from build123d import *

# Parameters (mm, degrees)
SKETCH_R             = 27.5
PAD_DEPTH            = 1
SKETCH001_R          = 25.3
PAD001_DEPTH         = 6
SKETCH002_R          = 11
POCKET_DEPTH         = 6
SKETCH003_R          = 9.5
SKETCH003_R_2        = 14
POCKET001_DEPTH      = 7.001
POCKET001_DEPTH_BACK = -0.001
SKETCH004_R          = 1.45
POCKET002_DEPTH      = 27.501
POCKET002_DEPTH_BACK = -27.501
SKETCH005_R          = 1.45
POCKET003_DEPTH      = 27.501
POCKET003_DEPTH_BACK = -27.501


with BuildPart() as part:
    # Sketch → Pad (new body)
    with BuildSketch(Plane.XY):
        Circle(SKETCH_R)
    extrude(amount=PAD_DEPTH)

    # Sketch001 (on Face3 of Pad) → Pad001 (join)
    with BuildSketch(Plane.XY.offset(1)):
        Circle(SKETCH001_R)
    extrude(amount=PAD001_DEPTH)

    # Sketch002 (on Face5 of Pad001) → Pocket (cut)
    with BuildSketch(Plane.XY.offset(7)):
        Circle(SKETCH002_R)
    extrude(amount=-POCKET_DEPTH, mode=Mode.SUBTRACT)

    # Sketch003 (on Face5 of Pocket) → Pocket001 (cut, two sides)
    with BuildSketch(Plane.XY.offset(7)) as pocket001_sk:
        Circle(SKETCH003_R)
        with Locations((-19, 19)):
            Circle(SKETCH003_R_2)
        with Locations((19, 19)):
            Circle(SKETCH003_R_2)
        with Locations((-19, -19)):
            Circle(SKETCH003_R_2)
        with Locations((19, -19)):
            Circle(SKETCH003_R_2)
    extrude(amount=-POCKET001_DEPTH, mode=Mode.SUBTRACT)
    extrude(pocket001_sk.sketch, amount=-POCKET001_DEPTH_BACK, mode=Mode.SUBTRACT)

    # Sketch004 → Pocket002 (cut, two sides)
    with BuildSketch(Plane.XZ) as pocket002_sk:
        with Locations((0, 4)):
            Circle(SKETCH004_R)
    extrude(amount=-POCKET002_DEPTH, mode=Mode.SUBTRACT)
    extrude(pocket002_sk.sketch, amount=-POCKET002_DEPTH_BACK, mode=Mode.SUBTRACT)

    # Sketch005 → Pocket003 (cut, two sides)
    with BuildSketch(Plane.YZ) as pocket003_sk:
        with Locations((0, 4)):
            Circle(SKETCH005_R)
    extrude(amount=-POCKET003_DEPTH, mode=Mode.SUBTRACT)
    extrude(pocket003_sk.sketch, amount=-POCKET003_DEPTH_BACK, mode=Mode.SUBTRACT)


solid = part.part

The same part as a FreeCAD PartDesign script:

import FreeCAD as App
import Part
import Sketcher

doc = App.newDocument("Part")
params = doc.addObject("Spreadsheet::Sheet", "Params")
for row, (alias, value) in enumerate([
    ("sketch1_diameter", "55 mm"),
    ("pad1_length", "1 mm"),
    ("sketch2_diameter", "50.6 mm"),
    ("pad2_length", "6 mm"),
    ("sketch3_diameter", "22 mm"),
    ("pocket1_length", "6 mm"),
    ("sketch4_diameter", "19 mm"),
    ("sketch4_diameter2", "28 mm"),
    ("sketch5_diameter", "2.9 mm"),
    ("sketch6_diameter", "2.9 mm"),
], start=1):
    params.set(f"A{row}", alias)
    params.set(f"B{row}", "=" + value)
    params.setAlias(f"B{row}", alias)

body = doc.addObject("PartDesign::Body", "Body")

sketch1 = body.newObject("Sketcher::SketchObject", "Sketch")
sketch1.AttachmentSupport = (doc.getObject("XY_Plane"), [""])
sketch1.MapMode = "FlatFace"
sketch1.addGeometry(Part.Circle(App.Vector(0, 0, 0), App.Vector(0, 0, 1), 28), False)
sketch1.addConstraint([
    Sketcher.Constraint("Coincident", 0, 3, -1, 1),
    Sketcher.Constraint("Diameter", 0, 55.0),
])
sketch1.setExpression("Constraints[1]", "Params.sketch1_diameter")
pad1 = body.newObject("PartDesign::Pad", "Pad")
pad1.Profile = sketch1
pad1.setExpression("Length", "Params.pad1_length")

sketch2 = body.newObject("Sketcher::SketchObject", "Sketch001")
sketch2.AttachmentSupport = (doc.getObject("XY_Plane"), [""])
sketch2.MapMode = "FlatFace"
sketch2.AttachmentOffset = App.Placement(App.Vector(0, 0, 1), App.Rotation())
sketch2.addGeometry(Part.Circle(App.Vector(0, 0, 0), App.Vector(0, 0, 1), 25), False)
sketch2.addConstraint([
    Sketcher.Constraint("Coincident", 0, 3, -1, 1),
    Sketcher.Constraint("Diameter", 0, 50.6),
])
sketch2.setExpression("Constraints[1]", "Params.sketch2_diameter")
pad2 = body.newObject("PartDesign::Pad", "Pad001")
pad2.Profile = sketch2
pad2.setExpression("Length", "Params.pad2_length")

sketch3 = body.newObject("Sketcher::SketchObject", "Sketch002")
sketch3.AttachmentSupport = (doc.getObject("XY_Plane"), [""])
sketch3.MapMode = "FlatFace"
sketch3.AttachmentOffset = App.Placement(App.Vector(0, 0, 7), App.Rotation())
sketch3.addGeometry(Part.Circle(App.Vector(0, 0, 0), App.Vector(0, 0, 1), 11), False)
sketch3.addConstraint([
    Sketcher.Constraint("Coincident", 0, 3, -1, 1),
    Sketcher.Constraint("Diameter", 0, 22.0),
])
sketch3.setExpression("Constraints[1]", "Params.sketch3_diameter")
pocket1 = body.newObject("PartDesign::Pocket", "Pocket")
pocket1.Profile = sketch3
pocket1.setExpression("Length", "Params.pocket1_length")

sketch4 = body.newObject("Sketcher::SketchObject", "Sketch003")
sketch4.AttachmentSupport = (doc.getObject("XY_Plane"), [""])
sketch4.MapMode = "FlatFace"
sketch4.AttachmentOffset = App.Placement(App.Vector(0, 0, 7), App.Rotation())
sketch4.addGeometry([
    Part.Circle(App.Vector(0, 0, 0), App.Vector(0, 0, 1), 10),
    Part.Circle(App.Vector(-19, 19, 0), App.Vector(0, 0, 1), 14),
    Part.Circle(App.Vector(19, 19, 0), App.Vector(0, 0, 1), 14),
    Part.Circle(App.Vector(-19, -19, 0), App.Vector(0, 0, 1), 14),
    Part.Circle(App.Vector(19, -19, 0), App.Vector(0, 0, 1), 14),
], False)
sketch4.addConstraint([
    Sketcher.Constraint("Coincident", 0, 3, -1, 1),
    Sketcher.Constraint("Equal", 1, 2),
    Sketcher.Constraint("Equal", 2, 3),
    Sketcher.Constraint("Equal", 3, 4),
    Sketcher.Constraint("Symmetric", 2, 3, 3, 3, -1, 1),
    Sketcher.Constraint("Symmetric", 1, 3, 4, 3, -1, 1),
    Sketcher.Constraint("Symmetric", 1, 3, 2, 3, -2),
    Sketcher.Constraint("Diameter", 0, 19.0),
    Sketcher.Constraint("Diameter", 1, 28.0),
    Sketcher.Constraint("DistanceX", 1, 3, -1, 1, 19.0),
    Sketcher.Constraint("DistanceY", -1, 1, 1, 3, 19.0),
])
sketch4.setExpression("Constraints[7]", "Params.sketch4_diameter")
sketch4.setExpression("Constraints[8]", "Params.sketch4_diameter2")
pocket2 = body.newObject("PartDesign::Pocket", "Pocket001")
pocket2.Profile = sketch4
pocket2.Type = "ThroughAll"
pocket2.Midplane = True

sketch5 = body.newObject("Sketcher::SketchObject", "Sketch004")
sketch5.AttachmentSupport = (doc.getObject("XZ_Plane"), [""])
sketch5.MapMode = "FlatFace"
sketch5.addGeometry(Part.Circle(App.Vector(0, 4, 0), App.Vector(0, 0, 1), 1.4), False)
sketch5.addConstraint([
    Sketcher.Constraint("PointOnObject", 0, 3, -2),
    Sketcher.Constraint("Diameter", 0, 2.9),
    Sketcher.Constraint("DistanceY", -1, 1, 0, 3, 4.0),
])
sketch5.setExpression("Constraints[1]", "Params.sketch5_diameter")
pocket3 = body.newObject("PartDesign::Pocket", "Pocket002")
pocket3.Profile = sketch5
pocket3.Type = "ThroughAll"
pocket3.Midplane = True

sketch6 = body.newObject("Sketcher::SketchObject", "Sketch005")
sketch6.AttachmentSupport = (doc.getObject("YZ_Plane"), [""])
sketch6.MapMode = "FlatFace"
sketch6.addGeometry(Part.Circle(App.Vector(0, 4, 0), App.Vector(0, 0, 1), 1.4), False)
sketch6.addConstraint([
    Sketcher.Constraint("PointOnObject", 0, 3, -2),
    Sketcher.Constraint("Diameter", 0, 2.9),
    Sketcher.Constraint("DistanceY", -1, 1, 0, 3, 4.0),
])
sketch6.setExpression("Constraints[1]", "Params.sketch6_diameter")
pocket4 = body.newObject("PartDesign::Pocket", "Pocket003")
pocket4.Profile = sketch6
pocket4.Type = "ThroughAll"
pocket4.Midplane = True

doc.recompute()
